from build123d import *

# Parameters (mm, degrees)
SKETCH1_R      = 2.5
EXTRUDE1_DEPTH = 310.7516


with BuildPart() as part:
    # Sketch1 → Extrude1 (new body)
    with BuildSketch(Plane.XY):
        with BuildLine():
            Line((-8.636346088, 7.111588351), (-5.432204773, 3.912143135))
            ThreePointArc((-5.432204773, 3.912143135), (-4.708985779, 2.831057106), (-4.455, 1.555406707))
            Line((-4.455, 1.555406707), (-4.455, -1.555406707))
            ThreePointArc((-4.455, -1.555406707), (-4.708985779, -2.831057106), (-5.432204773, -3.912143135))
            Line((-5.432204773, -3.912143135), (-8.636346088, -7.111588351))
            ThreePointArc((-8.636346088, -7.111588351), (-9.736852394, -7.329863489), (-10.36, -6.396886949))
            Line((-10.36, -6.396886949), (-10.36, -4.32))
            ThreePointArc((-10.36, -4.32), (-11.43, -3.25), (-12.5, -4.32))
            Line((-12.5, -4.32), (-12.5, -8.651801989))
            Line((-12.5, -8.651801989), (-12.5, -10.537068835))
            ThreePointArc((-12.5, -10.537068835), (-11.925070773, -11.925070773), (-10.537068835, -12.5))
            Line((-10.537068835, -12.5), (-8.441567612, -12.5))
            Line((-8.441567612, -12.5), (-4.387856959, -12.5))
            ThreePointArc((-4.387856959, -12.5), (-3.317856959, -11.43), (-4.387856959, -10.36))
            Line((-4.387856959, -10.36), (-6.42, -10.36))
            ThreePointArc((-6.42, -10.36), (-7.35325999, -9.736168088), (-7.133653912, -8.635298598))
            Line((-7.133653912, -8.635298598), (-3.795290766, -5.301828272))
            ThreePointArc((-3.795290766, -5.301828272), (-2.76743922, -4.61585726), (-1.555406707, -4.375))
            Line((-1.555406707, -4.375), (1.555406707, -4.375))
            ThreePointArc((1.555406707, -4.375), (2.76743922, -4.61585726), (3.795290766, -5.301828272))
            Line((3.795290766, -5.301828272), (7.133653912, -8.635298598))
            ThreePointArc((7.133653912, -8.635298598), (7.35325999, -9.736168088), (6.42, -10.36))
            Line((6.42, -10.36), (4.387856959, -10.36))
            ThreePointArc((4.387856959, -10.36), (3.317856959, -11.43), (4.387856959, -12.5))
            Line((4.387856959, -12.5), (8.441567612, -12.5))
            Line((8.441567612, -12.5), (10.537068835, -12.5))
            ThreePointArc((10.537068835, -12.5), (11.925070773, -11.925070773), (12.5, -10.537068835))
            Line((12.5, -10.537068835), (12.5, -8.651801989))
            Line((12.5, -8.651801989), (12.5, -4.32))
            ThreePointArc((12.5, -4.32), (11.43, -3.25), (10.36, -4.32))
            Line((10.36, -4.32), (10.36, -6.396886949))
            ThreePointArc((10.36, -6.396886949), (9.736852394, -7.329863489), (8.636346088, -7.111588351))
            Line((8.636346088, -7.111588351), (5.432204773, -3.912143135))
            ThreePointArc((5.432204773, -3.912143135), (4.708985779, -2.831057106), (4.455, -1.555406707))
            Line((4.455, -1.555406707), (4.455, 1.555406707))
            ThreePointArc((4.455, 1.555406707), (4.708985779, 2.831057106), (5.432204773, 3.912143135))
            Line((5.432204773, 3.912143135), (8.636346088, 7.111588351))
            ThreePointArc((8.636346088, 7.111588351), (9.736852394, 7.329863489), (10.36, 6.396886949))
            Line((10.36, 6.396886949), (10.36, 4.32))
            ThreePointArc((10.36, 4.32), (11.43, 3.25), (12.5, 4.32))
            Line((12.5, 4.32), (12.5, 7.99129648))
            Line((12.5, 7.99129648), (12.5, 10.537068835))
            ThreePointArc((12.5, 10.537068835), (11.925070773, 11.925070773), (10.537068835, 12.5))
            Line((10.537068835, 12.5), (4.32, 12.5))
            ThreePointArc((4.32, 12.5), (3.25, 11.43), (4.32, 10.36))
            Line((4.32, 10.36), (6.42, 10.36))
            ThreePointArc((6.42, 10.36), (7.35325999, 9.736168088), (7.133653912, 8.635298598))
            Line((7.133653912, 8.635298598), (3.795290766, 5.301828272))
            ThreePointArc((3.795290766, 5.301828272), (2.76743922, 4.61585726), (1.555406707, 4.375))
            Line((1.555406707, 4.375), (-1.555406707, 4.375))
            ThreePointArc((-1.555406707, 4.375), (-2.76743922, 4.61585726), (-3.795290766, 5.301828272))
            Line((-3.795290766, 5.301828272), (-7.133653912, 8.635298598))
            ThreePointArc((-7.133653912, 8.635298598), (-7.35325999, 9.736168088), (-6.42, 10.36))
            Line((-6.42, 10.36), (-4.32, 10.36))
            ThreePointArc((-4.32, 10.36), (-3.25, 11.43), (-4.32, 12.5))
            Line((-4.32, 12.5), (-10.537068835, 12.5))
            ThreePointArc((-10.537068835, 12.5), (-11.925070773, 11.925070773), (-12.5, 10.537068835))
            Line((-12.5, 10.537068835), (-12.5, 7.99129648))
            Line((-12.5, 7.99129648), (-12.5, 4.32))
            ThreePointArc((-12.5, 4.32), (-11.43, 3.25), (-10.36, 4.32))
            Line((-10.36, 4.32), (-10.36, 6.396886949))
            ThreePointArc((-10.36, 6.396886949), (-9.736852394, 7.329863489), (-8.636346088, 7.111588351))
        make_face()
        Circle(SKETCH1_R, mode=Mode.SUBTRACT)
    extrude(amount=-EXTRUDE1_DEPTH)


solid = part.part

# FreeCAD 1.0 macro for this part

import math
import FreeCAD as App
import Part
import Sketcher

V = App.Vector

doc = App.newDocument("Part")
body = doc.addObject("PartDesign::Body", "Body")

# Sketch on XY plane
sketch1 = body.newObject("Sketcher::SketchObject", "Sketch")
sketch1.AttachmentSupport = (doc.getObject("XY_Plane"), [""])
sketch1.MapMode = "FlatFace"
sketch1.addGeometry([
    Part.LineSegment(V(-8.6, 7.1, 0), V(-5.4, 3.9, 0)),  # 0
    Part.ArcOfCircle(Part.Circle(V(-7.8, 1.6, 0), V(0, 0, 1), 3.3), math.radians(0), math.radians(45)),  # 1
    Part.LineSegment(V(-4.5, 1.6, 0), V(-4.5, -1.6, 0)),  # 2
    Part.ArcOfCircle(Part.Circle(V(-7.8, -1.6, 0), V(0, 0, 1), 3.3), math.radians(-45), math.radians(0)),  # 3
    Part.LineSegment(V(-5.4, -3.9, 0), V(-8.6, -7.1, 0)),  # 4
    Part.ArcOfCircle(Part.Circle(V(-9.3, -6.4, 0), V(0, 0, 1), 1), math.radians(-180), math.radians(-45)),  # 5
    Part.LineSegment(V(-10.4, -6.4, 0), V(-10.4, -4.3, 0)),  # 6
    Part.ArcOfCircle(Part.Circle(V(-11.4, -4.3, 0), V(0, 0, 1), 1.1), math.radians(0), math.radians(180)),  # 7
    Part.LineSegment(V(-12.5, -4.3, 0), V(-12.5, -10.5, 0)),  # 8
    Part.ArcOfCircle(Part.Circle(V(-10.5, -10.5, 0), V(0, 0, 1), 2), math.radians(180), math.radians(270)),  # 9
    Part.LineSegment(V(-10.5, -12.5, 0), V(-4.4, -12.5, 0)),  # 10
    Part.ArcOfCircle(Part.Circle(V(-4.4, -11.4, 0), V(0, 0, 1), 1.1), math.radians(-90), math.radians(90)),  # 11
    Part.LineSegment(V(-4.4, -10.4, 0), V(-6.4, -10.4, 0)),  # 12
    Part.ArcOfCircle(Part.Circle(V(-6.4, -9.3, 0), V(0, 0, 1), 1), math.radians(135), math.radians(270)),  # 13
    Part.LineSegment(V(-7.1, -8.6, 0), V(-3.8, -5.3, 0)),  # 14
    Part.ArcOfCircle(Part.Circle(V(-1.6, -7.5, 0), V(0, 0, 1), 3.2), math.radians(90), math.radians(135)),  # 15
    Part.LineSegment(V(-1.6, -4.4, 0), V(1.6, -4.4, 0)),  # 16
    Part.ArcOfCircle(Part.Circle(V(1.6, -7.5, 0), V(0, 0, 1), 3.2), math.radians(45), math.radians(90)),  # 17
    Part.LineSegment(V(3.8, -5.3, 0), V(7.1, -8.6, 0)),  # 18
    Part.ArcOfCircle(Part.Circle(V(6.4, -9.3, 0), V(0, 0, 1), 1), math.radians(-90), math.radians(45)),  # 19
    Part.LineSegment(V(6.4, -10.4, 0), V(4.4, -10.4, 0)),  # 20
    Part.ArcOfCircle(Part.Circle(V(4.4, -11.4, 0), V(0, 0, 1), 1.1), math.radians(90), math.radians(270)),  # 21
    Part.LineSegment(V(4.4, -12.5, 0), V(10.5, -12.5, 0)),  # 22
    Part.ArcOfCircle(Part.Circle(V(10.5, -10.5, 0), V(0, 0, 1), 2), math.radians(-90), math.radians(0)),  # 23
    Part.LineSegment(V(12.5, -10.5, 0), V(12.5, -4.3, 0)),  # 24
    Part.ArcOfCircle(Part.Circle(V(11.4, -4.3, 0), V(0, 0, 1), 1.1), math.radians(0), math.radians(180)),  # 25
    Part.LineSegment(V(10.4, -4.3, 0), V(10.4, -6.4, 0)),  # 26
    Part.ArcOfCircle(Part.Circle(V(9.3, -6.4, 0), V(0, 0, 1), 1), math.radians(-135), math.radians(0)),  # 27
    Part.LineSegment(V(8.6, -7.1, 0), V(5.4, -3.9, 0)),  # 28
    Part.ArcOfCircle(Part.Circle(V(7.8, -1.6, 0), V(0, 0, 1), 3.3), math.radians(180), math.radians(225)),  # 29
    Part.LineSegment(V(4.5, -1.6, 0), V(4.5, 1.6, 0)),  # 30
    Part.ArcOfCircle(Part.Circle(V(7.8, 1.6, 0), V(0, 0, 1), 3.3), math.radians(135), math.radians(180)),  # 31
    Part.LineSegment(V(5.4, 3.9, 0), V(8.6, 7.1, 0)),  # 32
    Part.ArcOfCircle(Part.Circle(V(9.3, 6.4, 0), V(0, 0, 1), 1), math.radians(0), math.radians(135)),  # 33
    Part.LineSegment(V(10.4, 6.4, 0), V(10.4, 4.3, 0)),  # 34
    Part.ArcOfCircle(Part.Circle(V(11.4, 4.3, 0), V(0, 0, 1), 1.1), math.radians(180), math.radians(360)),  # 35
    Part.LineSegment(V(12.5, 4.3, 0), V(12.5, 10.5, 0)),  # 36
    Part.ArcOfCircle(Part.Circle(V(10.5, 10.5, 0), V(0, 0, 1), 2), math.radians(0), math.radians(90)),  # 37
    Part.LineSegment(V(10.5, 12.5, 0), V(4.3, 12.5, 0)),  # 38
    Part.ArcOfCircle(Part.Circle(V(4.3, 11.4, 0), V(0, 0, 1), 1.1), math.radians(90), math.radians(270)),  # 39
    Part.LineSegment(V(4.3, 10.4, 0), V(6.4, 10.4, 0)),  # 40
    Part.ArcOfCircle(Part.Circle(V(6.4, 9.3, 0), V(0, 0, 1), 1), math.radians(-45), math.radians(90)),  # 41
    Part.LineSegment(V(7.1, 8.6, 0), V(3.8, 5.3, 0)),  # 42
    Part.ArcOfCircle(Part.Circle(V(1.6, 7.5, 0), V(0, 0, 1), 3.2), math.radians(-90), math.radians(-45)),  # 43
    Part.LineSegment(V(1.6, 4.4, 0), V(-1.6, 4.4, 0)),  # 44
    Part.ArcOfCircle(Part.Circle(V(-1.6, 7.5, 0), V(0, 0, 1), 3.2), math.radians(-135), math.radians(-90)),  # 45
    Part.LineSegment(V(-3.8, 5.3, 0), V(-7.1, 8.6, 0)),  # 46
    Part.ArcOfCircle(Part.Circle(V(-6.4, 9.3, 0), V(0, 0, 1), 1), math.radians(90), math.radians(225)),  # 47
    Part.LineSegment(V(-6.4, 10.4, 0), V(-4.3, 10.4, 0)),  # 48
    Part.ArcOfCircle(Part.Circle(V(-4.3, 11.4, 0), V(0, 0, 1), 1.1), math.radians(-90), math.radians(90)),  # 49
    Part.LineSegment(V(-4.3, 12.5, 0), V(-10.5, 12.5, 0)),  # 50
    Part.ArcOfCircle(Part.Circle(V(-10.5, 10.5, 0), V(0, 0, 1), 2), math.radians(90), math.radians(180)),  # 51
    Part.LineSegment(V(-12.5, 10.5, 0), V(-12.5, 4.3, 0)),  # 52
    Part.ArcOfCircle(Part.Circle(V(-11.4, 4.3, 0), V(0, 0, 1), 1.1), math.radians(180), math.radians(360)),  # 53
    Part.LineSegment(V(-10.4, 4.3, 0), V(-10.4, 6.4, 0)),  # 54
    Part.ArcOfCircle(Part.Circle(V(-9.3, 6.4, 0), V(0, 0, 1), 1), math.radians(45), math.radians(180)),  # 55
    Part.Circle(V(0, 0, 0), V(0, 0, 1), 2.5),  # 56
], False)
sketch1.addConstraint([
    Sketcher.Constraint("Tangent", 0, 2, 1, 2),
    Sketcher.Constraint("Tangent", 1, 1, 2, 1),
    Sketcher.Constraint("Tangent", 2, 2, 3, 2),
    Sketcher.Constraint("Tangent", 3, 1, 4, 1),
    Sketcher.Constraint("Tangent", 4, 2, 5, 2),
    Sketcher.Constraint("Tangent", 5, 1, 6, 1),
    Sketcher.Constraint("Tangent", 6, 2, 7, 1),
    Sketcher.Constraint("Tangent", 7, 2, 8, 1),
    Sketcher.Constraint("Tangent", 8, 2, 9, 1),
    Sketcher.Constraint("Tangent", 9, 2, 10, 1),
    Sketcher.Constraint("Tangent", 10, 2, 11, 1),
    Sketcher.Constraint("Tangent", 11, 2, 12, 1),
    Sketcher.Constraint("Tangent", 12, 2, 13, 2),
    Sketcher.Constraint("Tangent", 13, 1, 14, 1),
    Sketcher.Constraint("Tangent", 14, 2, 15, 2),
    Sketcher.Constraint("Tangent", 15, 1, 16, 1),
    Sketcher.Constraint("Tangent", 16, 2, 17, 2),
    Sketcher.Constraint("Tangent", 17, 1, 18, 1),
    Sketcher.Constraint("Tangent", 18, 2, 19, 2),
    Sketcher.Constraint("Tangent", 19, 1, 20, 1),
    Sketcher.Constraint("Tangent", 20, 2, 21, 1),
    Sketcher.Constraint("Tangent", 21, 2, 22, 1),
    Sketcher.Constraint("Tangent", 22, 2, 23, 1),
    Sketcher.Constraint("Tangent", 23, 2, 24, 1),
    Sketcher.Constraint("Tangent", 24, 2, 25, 1),
    Sketcher.Constraint("Tangent", 25, 2, 26, 1),
    Sketcher.Constraint("Tangent", 26, 2, 27, 2),
    Sketcher.Constraint("Tangent", 27, 1, 28, 1),
    Sketcher.Constraint("Tangent", 28, 2, 29, 2),
    Sketcher.Constraint("Tangent", 29, 1, 30, 1),
    Sketcher.Constraint("Tangent", 30, 2, 31, 2),
    Sketcher.Constraint("Tangent", 31, 1, 32, 1),
    Sketcher.Constraint("Tangent", 32, 2, 33, 2),
    Sketcher.Constraint("Tangent", 33, 1, 34, 1),
    Sketcher.Constraint("Tangent", 34, 2, 35, 1),
    Sketcher.Constraint("Tangent", 35, 2, 36, 1),
    Sketcher.Constraint("Tangent", 36, 2, 37, 1),
    Sketcher.Constraint("Tangent", 37, 2, 38, 1),
    Sketcher.Constraint("Tangent", 38, 2, 39, 1),
    Sketcher.Constraint("Tangent", 39, 2, 40, 1),
    Sketcher.Constraint("Tangent", 40, 2, 41, 2),
    Sketcher.Constraint("Tangent", 41, 1, 42, 1),
    Sketcher.Constraint("Tangent", 42, 2, 43, 2),
    Sketcher.Constraint("Tangent", 43, 1, 44, 1),
    Sketcher.Constraint("Tangent", 44, 2, 45, 2),
    Sketcher.Constraint("Tangent", 45, 1, 46, 1),
    Sketcher.Constraint("Tangent", 46, 2, 47, 2),
    Sketcher.Constraint("Tangent", 47, 1, 48, 1),
    Sketcher.Constraint("Tangent", 48, 2, 49, 1),
    Sketcher.Constraint("Tangent", 49, 2, 50, 1),
    Sketcher.Constraint("Tangent", 50, 2, 51, 1),
    Sketcher.Constraint("Tangent", 51, 2, 52, 1),
    Sketcher.Constraint("Tangent", 52, 2, 53, 1),
    Sketcher.Constraint("Tangent", 53, 2, 54, 1),
    Sketcher.Constraint("Tangent", 54, 2, 55, 2),
    Sketcher.Constraint("Tangent", 55, 1, 0, 1),
    Sketcher.Constraint("Vertical", 2),
    Sketcher.Constraint("Vertical", 6),
    Sketcher.Constraint("Vertical", 8),
    Sketcher.Constraint("Horizontal", 10),
    Sketcher.Constraint("Horizontal", 12),
    Sketcher.Constraint("Horizontal", 16),
    Sketcher.Constraint("Horizontal", 20),
    Sketcher.Constraint("Horizontal", 22),
    Sketcher.Constraint("Vertical", 24),
    Sketcher.Constraint("Vertical", 26),
    Sketcher.Constraint("Vertical", 30),
    Sketcher.Constraint("Vertical", 34),
    Sketcher.Constraint("Vertical", 36),
    Sketcher.Constraint("Horizontal", 38),
    Sketcher.Constraint("Horizontal", 40),
    Sketcher.Constraint("Horizontal", 44),
    Sketcher.Constraint("Horizontal", 48),
    Sketcher.Constraint("Horizontal", 50),
    Sketcher.Constraint("Vertical", 52),
    Sketcher.Constraint("Vertical", 54),
    Sketcher.Constraint("Coincident", 56, 3, -1, 1),
    Sketcher.Constraint("Equal", 1, 3),
    Sketcher.Constraint("Equal", 7, 11),
    Sketcher.Constraint("Equal", 5, 13),
    Sketcher.Constraint("Equal", 15, 17),
    Sketcher.Constraint("Equal", 13, 19),
    Sketcher.Constraint("Equal", 11, 21),
    Sketcher.Constraint("Equal", 9, 23),
    Sketcher.Constraint("Equal", 21, 25),
    Sketcher.Constraint("Equal", 19, 27),
    Sketcher.Constraint("Equal", 3, 29),
    Sketcher.Constraint("Equal", 29, 31),
    Sketcher.Constraint("Equal", 27, 33),
    Sketcher.Constraint("Equal", 25, 35),
    Sketcher.Constraint("Equal", 23, 37),
    Sketcher.Constraint("Equal", 35, 39),
    Sketcher.Constraint("Equal", 33, 41),
    Sketcher.Constraint("Equal", 17, 43),
    Sketcher.Constraint("Equal", 43, 45),
    Sketcher.Constraint("Equal", 41, 47),
    Sketcher.Constraint("Equal", 39, 49),
    Sketcher.Constraint("Equal", 37, 51),
    Sketcher.Constraint("Equal", 49, 53),
    Sketcher.Constraint("Equal", 47, 55),
    Sketcher.Constraint("Symmetric", 1, 3, 29, 3, -1, 1),
    Sketcher.Constraint("Symmetric", 5, 3, 33, 3, -1, 1),
    Sketcher.Constraint("Symmetric", 13, 3, 41, 3, -1, 1),
    Sketcher.Constraint("Symmetric", 15, 3, 43, 3, -1, 1),
    Sketcher.Constraint("Symmetric", 19, 3, 47, 3, -1, 1),
    Sketcher.Constraint("Symmetric", 25, 3, 53, 3, -1, 1),
    Sketcher.Constraint("Symmetric", 13, 3, 19, 3, -2),
    Sketcher.Constraint("Symmetric", 7, 3, 25, 3, -2),
    Sketcher.Constraint("Symmetric", 4, 2, 27, 1, -2),
    Sketcher.Constraint("Symmetric", 0, 2, 31, 1, -2),
    Sketcher.Constraint("Parallel", 4, 14),
    Sketcher.Constraint("Parallel", 0, 18),
    Sketcher.Constraint("Parallel", 28, 46),
    Sketcher.Constraint("Horizontal", 35, 3, 53, 3),
    Sketcher.Constraint("Equal", 12, 20),
    Sketcher.Constraint("Equal", 40, 48),
    Sketcher.Constraint("Equal", 44, 2),
    Sketcher.Constraint("Equal", 50, 8),
    Sketcher.Constraint("Diameter", 56, 5.0),
    Sketcher.Constraint("Radius", 5, 1.01),
    Sketcher.Constraint("Radius", 7, 1.07),
    Sketcher.Constraint("Radius", 15, 3.17),
    Sketcher.Constraint("DistanceX", 40, 1, 40, 2, 2.1),
    Sketcher.Constraint("DistanceX", 7, 2, -1, 1, 12.5),
    Sketcher.Constraint("DistanceY", 9, 2, -1, 1, 12.5),
    Sketcher.Constraint("DistanceY", 7, 3, -1, 1, 4.32),
    Sketcher.Constraint("Radius", 9, 1.962931),
    Sketcher.Constraint("DistanceY", 15, 3, -1, 1, 7.545),
    Sketcher.Constraint("DistanceX", 1, 1, -1, 1, 4.455),
    Sketcher.Constraint("Radius", 1, 3.330487),
    Sketcher.Constraint("Distance", 14, 4.7177),
    Sketcher.Constraint("DistanceX", 10, 1, 10, 2, 6.149212),
])
pad1 = body.newObject("PartDesign::Pad", "Pad")
pad1.Profile = sketch1
pad1.Length = 310.7516
pad1.Reversed = True

doc.recompute()
